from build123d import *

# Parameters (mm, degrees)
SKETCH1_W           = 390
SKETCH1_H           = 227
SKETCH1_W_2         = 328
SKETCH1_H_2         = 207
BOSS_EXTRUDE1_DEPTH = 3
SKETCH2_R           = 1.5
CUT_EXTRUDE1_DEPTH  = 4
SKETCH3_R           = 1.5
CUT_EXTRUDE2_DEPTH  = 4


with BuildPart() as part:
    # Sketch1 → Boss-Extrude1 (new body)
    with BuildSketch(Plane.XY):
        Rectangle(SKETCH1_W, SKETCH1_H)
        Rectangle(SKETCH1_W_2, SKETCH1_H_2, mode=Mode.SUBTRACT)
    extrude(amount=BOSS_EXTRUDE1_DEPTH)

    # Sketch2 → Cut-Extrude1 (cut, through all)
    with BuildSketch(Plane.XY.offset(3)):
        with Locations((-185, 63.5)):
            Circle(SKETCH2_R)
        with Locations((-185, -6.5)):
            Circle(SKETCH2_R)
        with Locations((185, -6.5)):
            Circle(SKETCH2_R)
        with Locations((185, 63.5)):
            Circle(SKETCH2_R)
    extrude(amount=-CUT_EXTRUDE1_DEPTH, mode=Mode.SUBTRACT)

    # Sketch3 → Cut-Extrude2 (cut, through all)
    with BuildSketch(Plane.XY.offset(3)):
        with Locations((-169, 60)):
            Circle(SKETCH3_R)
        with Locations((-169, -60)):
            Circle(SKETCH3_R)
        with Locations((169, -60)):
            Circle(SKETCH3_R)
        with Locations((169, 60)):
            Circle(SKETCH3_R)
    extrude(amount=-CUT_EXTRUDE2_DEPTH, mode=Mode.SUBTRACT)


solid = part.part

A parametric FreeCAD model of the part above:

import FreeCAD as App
import Part
import Sketcher

V = App.Vector
Q = App.Units.Quantity

doc = App.newDocument("Part")
params = doc.addObject("Spreadsheet::Sheet", "Params")
for row, (alias, value) in enumerate([
    ("sketch1_width", "390 mm"),
    ("sketch1_width2", "328 mm"),
    ("sketch1_height", "227 mm"),
    ("sketch1_height2", "207 mm"),
    ("pad1_length", "3 mm"),
    ("sketch2_diameter", "3 mm"),
    ("sketch3_diameter", "3 mm"),
], start=1):
    params.set(f"A{row}", alias)
    params.set(f"B{row}", "=" + value)
    params.setAlias(f"B{row}", alias)

body = doc.addObject("PartDesign::Body", "Body")

sketch1 = body.newObject("Sketcher::SketchObject", "Sketch")
sketch1.AttachmentSupport = (doc.getObject("XY_Plane"), [""])
sketch1.MapMode = "FlatFace"
sketch1.addGeometry(Part.LineSegment(V(-195, 114, 0), V(-195, -114, 0)), False)
sketch1.addGeometry(Part.LineSegment(V(-195, -114, 0), V(195, -114, 0)), False)
sketch1.addGeometry(Part.LineSegment(V(195, -114, 0), V(195, 114, 0)), False)
sketch1.addGeometry(Part.LineSegment(V(195, 114, 0), V(-195, 114, 0)), False)
sketch1.addGeometry(Part.LineSegment(V(164, -104, 0), V(-164, -104, 0)), False)
sketch1.addGeometry(Part.LineSegment(V(-164, -104, 0), V(-164, 104, 0)), False)
sketch1.addGeometry(Part.LineSegment(V(-164, 104, 0), V(164, 104, 0)), False)
sketch1.addGeometry(Part.LineSegment(V(164, 104, 0), V(164, -104, 0)), False)
sketch1.addConstraint(Sketcher.Constraint("Coincident", 0, 2, 1, 1))
sketch1.addConstraint(Sketcher.Constraint("Coincident", 1, 2, 2, 1))
sketch1.addConstraint(Sketcher.Constraint("Coincident", 2, 2, 3, 1))
sketch1.addConstraint(Sketcher.Constraint("Coincident", 3, 2, 0, 1))
sketch1.addConstraint(Sketcher.Constraint("Coincident", 4, 2, 5, 1))
sketch1.addConstraint(Sketcher.Constraint("Coincident", 5, 2, 6, 1))
sketch1.addConstraint(Sketcher.Constraint("Coincident", 6, 2, 7, 1))
sketch1.addConstraint(Sketcher.Constraint("Coincident", 7, 2, 4, 1))
sketch1.addConstraint(Sketcher.Constraint("Vertical", 0))
sketch1.addConstraint(Sketcher.Constraint("Horizontal", 1))
sketch1.addConstraint(Sketcher.Constraint("Vertical", 2))
sketch1.addConstraint(Sketcher.Constraint("Horizontal", 3))
sketch1.addConstraint(Sketcher.Constraint("Horizontal", 4))
sketch1.addConstraint(Sketcher.Constraint("Vertical", 5))
sketch1.addConstraint(Sketcher.Constraint("Horizontal", 6))
sketch1.addConstraint(Sketcher.Constraint("Vertical", 7))
sketch1.addConstraint(Sketcher.Constraint("Symmetric", 0, 2, 2, 2, -1, 1))
sketch1.addConstraint(Sketcher.Constraint("Symmetric", 4, 2, 6, 2, -1, 1))
sketch1.addConstraint(Sketcher.Constraint("DistanceX", 1, 1, 1, 2, Q("390 mm")))
sketch1.addConstraint(Sketcher.Constraint("DistanceX", 4, 2, 4, 1, Q("328 mm")))
sketch1.addConstraint(Sketcher.Constraint("DistanceY", 0, 2, 0, 1, Q("227 mm")))
sketch1.addConstraint(Sketcher.Constraint("DistanceY", 5, 1, 5, 2, Q("207 mm")))
sketch1.setExpression("Constraints[18]", "Params.sketch1_width")
sketch1.setExpression("Constraints[19]", "Params.sketch1_width2")
sketch1.setExpression("Constraints[20]", "Params.sketch1_height")
sketch1.setExpression("Constraints[21]", "Params.sketch1_height2")
pad1 = body.newObject("PartDesign::Pad", "Pad")
pad1.Profile = sketch1
pad1.setExpression("Length", "Params.pad1_length")

sketch2 = body.newObject("Sketcher::SketchObject", "Sketch001")
sketch2.AttachmentSupport = (doc.getObject("XY_Plane"), [""])
sketch2.MapMode = "FlatFace"
sketch2.AttachmentOffset = App.Placement(V(0, 0, 3), App.Rotation())
sketch2.addGeometry(Part.Circle(V(-185, 63.5, 0), V(0, 0, 1), 1.5), False)
sketch2.addGeometry(Part.Circle(V(-185, -6.5, 0), V(0, 0, 1), 1.5), False)
sketch2.addGeometry(Part.Circle(V(185, -6.5, 0), V(0, 0, 1), 1.5), False)
sketch2.addGeometry(Part.Circle(V(185, 63.5, 0), V(0, 0, 1), 1.5), False)
sketch2.addConstraint(Sketcher.Constraint("Equal", 0, 1))
sketch2.addConstraint(Sketcher.Constraint("Equal", 1, 2))
sketch2.addConstraint(Sketcher.Constraint("Equal", 2, 3))
sketch2.addConstraint(Sketcher.Constraint("Symmetric", 1, 3, 2, 3, -2))
sketch2.addConstraint(Sketcher.Constraint("Symmetric", 0, 3, 3, 3, -2))
sketch2.addConstraint(Sketcher.Constraint("Vertical", 0, 3, 1, 3))
sketch2.addConstraint(Sketcher.Constraint("Diameter", 0, Q("3 mm")))
sketch2.addConstraint(Sketcher.Constraint("DistanceX", 0, 3, -1, 1, Q("185 mm")))
sketch2.addConstraint(Sketcher.Constraint("DistanceY", 1, 3, 0, 3, Q("70 mm")))
sketch2.addConstraint(Sketcher.Constraint("DistanceY", -1, 1, 0, 3, Q("63.5 mm")))
sketch2.setExpression("Constraints[6]", "Params.sketch2_diameter")
pocket1 = body.newObject("PartDesign::Pocket", "Pocket")
pocket1.Profile = sketch2
pocket1.Type = "ThroughAll"

sketch3 = body.newObject("Sketcher::SketchObject", "Sketch002")
sketch3.AttachmentSupport = (doc.getObject("XY_Plane"), [""])
sketch3.MapMode = "FlatFace"
sketch3.AttachmentOffset = App.Placement(V(0, 0, 3), App.Rotation())
sketch3.addGeometry(Part.Circle(V(-169, 60, 0), V(0, 0, 1), 1.5), False)
sketch3.addGeometry(Part.Circle(V(-169, -60, 0), V(0, 0, 1), 1.5), False)
sketch3.addGeometry(Part.Circle(V(169, -60, 0), V(0, 0, 1), 1.5), False)
sketch3.addGeometry(Part.Circle(V(169, 60, 0), V(0, 0, 1), 1.5), False)
sketch3.addConstraint(Sketcher.Constraint("Equal", 0, 1))
sketch3.addConstraint(Sketcher.Constraint("Equal", 1, 2))
sketch3.addConstraint(Sketcher.Constraint("Equal", 2, 3))
sketch3.addConstraint(Sketcher.Constraint("Symmetric", 0, 3, 2, 3, -1, 1))
sketch3.addConstraint(Sketcher.Constraint("Symmetric", 1, 3, 3, 3, -1, 1))
sketch3.addConstraint(Sketcher.Constraint("Symmetric", 1, 3, 2, 3, -2))
sketch3.addConstraint(Sketcher.Constraint("Diameter", 0, Q("3 mm")))
sketch3.addConstraint(Sketcher.Constraint("DistanceX", 0, 3, -1, 1, Q("169 mm")))
sketch3.addConstraint(Sketcher.Constraint("DistanceY", -1, 1, 0, 3, Q("60 mm")))
sketch3.setExpression("Constraints[6]", "Params.sketch3_diameter")
pocket2 = body.newObject("PartDesign::Pocket", "Pocket001")
pocket2.Profile = sketch3
pocket2.Type = "ThroughAll"

doc.recompute()
